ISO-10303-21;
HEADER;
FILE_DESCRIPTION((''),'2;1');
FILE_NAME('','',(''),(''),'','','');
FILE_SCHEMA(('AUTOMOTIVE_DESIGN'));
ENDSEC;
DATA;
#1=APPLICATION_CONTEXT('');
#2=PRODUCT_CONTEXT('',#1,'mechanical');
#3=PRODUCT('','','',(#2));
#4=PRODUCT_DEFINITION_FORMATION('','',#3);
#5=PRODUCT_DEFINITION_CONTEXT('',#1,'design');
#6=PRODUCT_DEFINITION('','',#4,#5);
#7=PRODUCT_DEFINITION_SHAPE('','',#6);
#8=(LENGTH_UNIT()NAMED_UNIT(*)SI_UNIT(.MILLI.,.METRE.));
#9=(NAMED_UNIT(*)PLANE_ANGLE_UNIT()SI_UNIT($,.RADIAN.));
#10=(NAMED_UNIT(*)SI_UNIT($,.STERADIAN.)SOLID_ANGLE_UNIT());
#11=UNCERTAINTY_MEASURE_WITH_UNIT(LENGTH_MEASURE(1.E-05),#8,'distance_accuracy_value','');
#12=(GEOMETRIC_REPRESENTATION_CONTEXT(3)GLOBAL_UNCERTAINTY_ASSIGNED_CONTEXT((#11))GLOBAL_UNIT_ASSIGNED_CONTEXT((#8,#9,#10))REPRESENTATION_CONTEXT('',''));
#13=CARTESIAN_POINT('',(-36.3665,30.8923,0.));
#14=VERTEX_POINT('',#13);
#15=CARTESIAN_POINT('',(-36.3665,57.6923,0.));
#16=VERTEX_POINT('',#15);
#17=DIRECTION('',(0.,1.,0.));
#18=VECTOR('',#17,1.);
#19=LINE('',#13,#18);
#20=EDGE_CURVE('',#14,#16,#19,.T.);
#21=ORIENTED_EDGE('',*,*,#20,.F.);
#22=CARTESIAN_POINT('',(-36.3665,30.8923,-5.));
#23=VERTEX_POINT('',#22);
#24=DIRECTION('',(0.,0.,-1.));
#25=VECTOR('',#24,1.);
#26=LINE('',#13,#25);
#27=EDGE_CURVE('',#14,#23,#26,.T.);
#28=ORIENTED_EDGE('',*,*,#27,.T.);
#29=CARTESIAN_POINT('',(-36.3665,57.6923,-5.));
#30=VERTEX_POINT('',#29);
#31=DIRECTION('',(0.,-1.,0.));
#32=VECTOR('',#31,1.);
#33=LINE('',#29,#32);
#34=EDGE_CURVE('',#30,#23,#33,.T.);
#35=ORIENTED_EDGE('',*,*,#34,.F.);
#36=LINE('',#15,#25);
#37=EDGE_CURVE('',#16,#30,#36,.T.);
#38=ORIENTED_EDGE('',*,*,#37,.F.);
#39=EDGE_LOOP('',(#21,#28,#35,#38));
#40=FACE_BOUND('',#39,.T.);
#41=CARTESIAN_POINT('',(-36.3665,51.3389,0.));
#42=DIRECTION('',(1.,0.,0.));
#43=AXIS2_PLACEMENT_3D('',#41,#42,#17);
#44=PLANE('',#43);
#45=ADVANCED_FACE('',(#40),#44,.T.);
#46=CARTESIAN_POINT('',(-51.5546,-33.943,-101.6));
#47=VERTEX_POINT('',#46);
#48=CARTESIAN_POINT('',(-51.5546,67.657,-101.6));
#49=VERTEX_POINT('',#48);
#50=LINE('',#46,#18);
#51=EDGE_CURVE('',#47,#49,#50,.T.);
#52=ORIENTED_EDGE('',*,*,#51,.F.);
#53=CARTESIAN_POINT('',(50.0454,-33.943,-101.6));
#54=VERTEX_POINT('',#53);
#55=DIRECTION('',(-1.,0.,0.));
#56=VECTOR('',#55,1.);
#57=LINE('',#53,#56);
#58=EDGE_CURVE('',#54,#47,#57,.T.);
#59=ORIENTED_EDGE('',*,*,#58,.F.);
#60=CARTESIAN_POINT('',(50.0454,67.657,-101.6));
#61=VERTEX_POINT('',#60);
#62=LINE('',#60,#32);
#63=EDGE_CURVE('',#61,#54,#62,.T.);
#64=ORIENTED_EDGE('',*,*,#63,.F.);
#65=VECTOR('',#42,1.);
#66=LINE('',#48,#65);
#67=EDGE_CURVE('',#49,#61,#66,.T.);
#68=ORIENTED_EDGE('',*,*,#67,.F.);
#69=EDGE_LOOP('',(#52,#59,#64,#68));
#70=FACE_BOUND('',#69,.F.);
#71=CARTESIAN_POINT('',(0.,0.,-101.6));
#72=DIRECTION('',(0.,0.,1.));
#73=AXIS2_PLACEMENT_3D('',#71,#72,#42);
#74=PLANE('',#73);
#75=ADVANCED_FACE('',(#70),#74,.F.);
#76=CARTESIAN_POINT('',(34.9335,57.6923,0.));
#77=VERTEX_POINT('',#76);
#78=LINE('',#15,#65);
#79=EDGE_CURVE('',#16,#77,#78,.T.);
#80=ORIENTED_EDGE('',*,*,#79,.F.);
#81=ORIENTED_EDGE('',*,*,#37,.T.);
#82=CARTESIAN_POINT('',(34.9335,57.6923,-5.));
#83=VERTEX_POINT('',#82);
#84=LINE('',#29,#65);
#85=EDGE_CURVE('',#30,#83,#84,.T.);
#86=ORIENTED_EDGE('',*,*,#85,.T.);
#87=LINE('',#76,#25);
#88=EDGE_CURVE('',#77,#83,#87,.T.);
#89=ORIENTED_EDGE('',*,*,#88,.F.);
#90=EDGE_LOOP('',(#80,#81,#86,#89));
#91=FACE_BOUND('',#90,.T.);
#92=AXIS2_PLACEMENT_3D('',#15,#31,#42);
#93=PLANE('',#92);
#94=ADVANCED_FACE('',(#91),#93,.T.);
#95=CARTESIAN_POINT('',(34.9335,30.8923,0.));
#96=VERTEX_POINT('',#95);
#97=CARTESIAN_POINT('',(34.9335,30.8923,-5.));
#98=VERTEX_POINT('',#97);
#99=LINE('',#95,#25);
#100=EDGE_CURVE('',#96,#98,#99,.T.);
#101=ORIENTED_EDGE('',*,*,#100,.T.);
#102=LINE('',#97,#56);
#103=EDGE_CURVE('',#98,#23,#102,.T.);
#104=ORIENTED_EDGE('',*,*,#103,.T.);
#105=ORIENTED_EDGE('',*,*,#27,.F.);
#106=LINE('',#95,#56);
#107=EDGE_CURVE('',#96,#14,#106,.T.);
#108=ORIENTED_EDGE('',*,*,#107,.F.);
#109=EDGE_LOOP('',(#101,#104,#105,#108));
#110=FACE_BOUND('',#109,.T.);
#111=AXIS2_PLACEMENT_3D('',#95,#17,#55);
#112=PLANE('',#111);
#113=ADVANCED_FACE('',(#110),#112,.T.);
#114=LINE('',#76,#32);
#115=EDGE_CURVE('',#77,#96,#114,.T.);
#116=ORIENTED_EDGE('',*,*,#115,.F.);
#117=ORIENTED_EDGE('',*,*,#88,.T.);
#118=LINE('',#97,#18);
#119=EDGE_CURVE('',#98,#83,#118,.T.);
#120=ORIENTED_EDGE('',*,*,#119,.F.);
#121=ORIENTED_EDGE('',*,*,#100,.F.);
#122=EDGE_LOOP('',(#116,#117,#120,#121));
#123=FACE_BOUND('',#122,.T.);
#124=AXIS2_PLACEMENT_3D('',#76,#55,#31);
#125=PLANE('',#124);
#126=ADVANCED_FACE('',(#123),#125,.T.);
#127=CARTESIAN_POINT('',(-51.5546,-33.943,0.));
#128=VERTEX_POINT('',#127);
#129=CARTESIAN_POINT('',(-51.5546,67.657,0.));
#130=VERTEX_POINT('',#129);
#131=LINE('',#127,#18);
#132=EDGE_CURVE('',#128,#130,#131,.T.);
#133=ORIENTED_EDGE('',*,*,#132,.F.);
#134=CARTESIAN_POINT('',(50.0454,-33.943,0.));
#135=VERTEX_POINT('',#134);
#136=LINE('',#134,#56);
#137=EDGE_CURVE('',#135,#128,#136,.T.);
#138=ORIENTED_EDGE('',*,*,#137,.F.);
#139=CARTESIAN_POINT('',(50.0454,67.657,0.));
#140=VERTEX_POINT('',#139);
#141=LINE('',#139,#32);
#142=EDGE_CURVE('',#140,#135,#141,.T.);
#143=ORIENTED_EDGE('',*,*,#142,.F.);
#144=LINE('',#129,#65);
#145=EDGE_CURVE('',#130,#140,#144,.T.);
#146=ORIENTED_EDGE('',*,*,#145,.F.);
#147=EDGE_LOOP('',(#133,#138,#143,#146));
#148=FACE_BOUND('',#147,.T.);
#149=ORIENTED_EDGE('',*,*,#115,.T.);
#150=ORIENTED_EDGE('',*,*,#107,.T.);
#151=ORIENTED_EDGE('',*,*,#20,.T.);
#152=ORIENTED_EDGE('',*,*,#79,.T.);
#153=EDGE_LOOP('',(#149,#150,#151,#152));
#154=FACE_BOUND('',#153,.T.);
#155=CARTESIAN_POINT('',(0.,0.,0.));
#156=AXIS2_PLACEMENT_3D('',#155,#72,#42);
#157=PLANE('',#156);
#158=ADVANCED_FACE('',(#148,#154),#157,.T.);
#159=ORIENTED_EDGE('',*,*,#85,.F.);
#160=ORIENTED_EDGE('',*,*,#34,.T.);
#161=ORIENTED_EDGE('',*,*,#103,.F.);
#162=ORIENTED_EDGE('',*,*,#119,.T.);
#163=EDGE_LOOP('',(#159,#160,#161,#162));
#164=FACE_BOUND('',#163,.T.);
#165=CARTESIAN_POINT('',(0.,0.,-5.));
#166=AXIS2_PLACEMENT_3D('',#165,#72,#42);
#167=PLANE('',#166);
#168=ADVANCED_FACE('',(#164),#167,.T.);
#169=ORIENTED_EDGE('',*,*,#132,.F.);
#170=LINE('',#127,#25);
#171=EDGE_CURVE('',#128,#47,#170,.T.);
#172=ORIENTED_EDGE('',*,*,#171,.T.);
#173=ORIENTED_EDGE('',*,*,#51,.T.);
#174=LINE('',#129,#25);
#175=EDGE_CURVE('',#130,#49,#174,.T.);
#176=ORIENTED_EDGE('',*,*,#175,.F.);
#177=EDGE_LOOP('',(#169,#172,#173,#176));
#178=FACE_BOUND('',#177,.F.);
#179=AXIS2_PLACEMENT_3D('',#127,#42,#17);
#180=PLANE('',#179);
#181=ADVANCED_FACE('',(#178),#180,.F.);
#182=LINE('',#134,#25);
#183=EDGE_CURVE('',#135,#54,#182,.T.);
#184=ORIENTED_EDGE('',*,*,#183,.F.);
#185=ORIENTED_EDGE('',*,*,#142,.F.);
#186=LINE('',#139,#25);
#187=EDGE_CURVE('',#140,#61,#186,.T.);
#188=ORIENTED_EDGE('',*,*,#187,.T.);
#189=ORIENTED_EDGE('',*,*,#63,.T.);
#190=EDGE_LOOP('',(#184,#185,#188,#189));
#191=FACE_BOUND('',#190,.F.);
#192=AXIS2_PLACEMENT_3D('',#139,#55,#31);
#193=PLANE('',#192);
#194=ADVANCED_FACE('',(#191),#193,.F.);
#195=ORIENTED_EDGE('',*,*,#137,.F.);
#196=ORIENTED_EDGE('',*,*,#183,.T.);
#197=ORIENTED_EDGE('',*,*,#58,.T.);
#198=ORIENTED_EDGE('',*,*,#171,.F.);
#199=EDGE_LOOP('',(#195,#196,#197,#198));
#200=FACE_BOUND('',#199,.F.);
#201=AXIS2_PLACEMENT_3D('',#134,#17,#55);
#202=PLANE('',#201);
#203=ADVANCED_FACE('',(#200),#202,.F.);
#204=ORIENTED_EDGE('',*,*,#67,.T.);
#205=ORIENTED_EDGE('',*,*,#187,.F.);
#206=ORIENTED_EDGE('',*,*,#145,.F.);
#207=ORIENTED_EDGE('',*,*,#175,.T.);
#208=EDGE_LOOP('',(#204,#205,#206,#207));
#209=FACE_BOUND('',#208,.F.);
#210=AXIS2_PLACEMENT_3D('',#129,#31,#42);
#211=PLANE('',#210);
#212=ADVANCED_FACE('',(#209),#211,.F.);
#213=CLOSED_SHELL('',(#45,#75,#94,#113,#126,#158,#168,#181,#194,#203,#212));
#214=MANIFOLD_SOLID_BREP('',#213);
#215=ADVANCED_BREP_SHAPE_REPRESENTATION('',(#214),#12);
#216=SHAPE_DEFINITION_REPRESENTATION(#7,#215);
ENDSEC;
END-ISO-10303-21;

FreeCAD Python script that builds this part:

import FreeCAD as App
import Part
import Sketcher


def add_polygon(sketch, points):
    """Adds a closed chain of lines whose ends are joined by coincident constraints."""
    first, n = sketch.GeometryCount, len(points)
    for a, b in zip(points, points[1:] + points[:1]):
        sketch.addGeometry(Part.LineSegment(App.Vector(*a, 0), App.Vector(*b, 0)), False)
    for i in range(n):
        sketch.addConstraint(Sketcher.Constraint("Coincident", first + i, 2, first + (i + 1) % n, 1))

doc = App.newDocument("Part")
body = doc.addObject("PartDesign::Body", "Body")

# Sketch on XY plane
sketch1 = body.newObject("Sketcher::SketchObject", "Sketch")
sketch1.AttachmentSupport = (doc.getObject("XY_Plane"), [""])
sketch1.MapMode = "FlatFace"
add_polygon(sketch1, [(50, 68), (-52, 68), (-52, -34), (50, -34)])  # lines 0-3
sketch1.addConstraint([
    Sketcher.Constraint("Horizontal", 0),
    Sketcher.Constraint("Vertical", 1),
    Sketcher.Constraint("Horizontal", 2),
    Sketcher.Constraint("Vertical", 3),
    Sketcher.Constraint("Equal", 2, 1),
    Sketcher.Constraint("DistanceX", 0, 2, 0, 1, 101.6),
    Sketcher.Constraint("DistanceY", -1, 1, 0, 2, 67.657),
    Sketcher.Constraint("DistanceX", 0, 2, -1, 1, 51.5546),
])
pad1 = body.newObject("PartDesign::Pad", "Pad")
pad1.Profile = sketch1
pad1.Length = 101.6
pad1.Reversed = True

# Sketch on XY plane
sketch2 = body.newObject("Sketcher::SketchObject", "Sketch001")
sketch2.AttachmentSupport = (doc.getObject("XY_Plane"), [""])
sketch2.MapMode = "FlatFace"
add_polygon(sketch2, [(35, 58), (-36, 58), (-36, 31), (35, 31)])  # lines 0-3
sketch2.addConstraint([
    Sketcher.Constraint("Horizontal", 0),
    Sketcher.Constraint("Vertical", 1),
    Sketcher.Constraint("Horizontal", 2),
    Sketcher.Constraint("Vertical", 3),
    Sketcher.Constraint("DistanceX", 0, 2, 0, 1, 71.3),
    Sketcher.Constraint("DistanceY", 1, 2, 1, 1, 26.8),
    Sketcher.Constraint("DistanceX", 0, 2, -1, 1, 36.3665),
    Sketcher.Constraint("DistanceY", -1, 1, 0, 2, 57.6923),
])
pocket1 = body.newObject("PartDesign::Pocket", "Pocket")
pocket1.Profile = sketch2
pocket1.Length = 5

doc.recompute()
